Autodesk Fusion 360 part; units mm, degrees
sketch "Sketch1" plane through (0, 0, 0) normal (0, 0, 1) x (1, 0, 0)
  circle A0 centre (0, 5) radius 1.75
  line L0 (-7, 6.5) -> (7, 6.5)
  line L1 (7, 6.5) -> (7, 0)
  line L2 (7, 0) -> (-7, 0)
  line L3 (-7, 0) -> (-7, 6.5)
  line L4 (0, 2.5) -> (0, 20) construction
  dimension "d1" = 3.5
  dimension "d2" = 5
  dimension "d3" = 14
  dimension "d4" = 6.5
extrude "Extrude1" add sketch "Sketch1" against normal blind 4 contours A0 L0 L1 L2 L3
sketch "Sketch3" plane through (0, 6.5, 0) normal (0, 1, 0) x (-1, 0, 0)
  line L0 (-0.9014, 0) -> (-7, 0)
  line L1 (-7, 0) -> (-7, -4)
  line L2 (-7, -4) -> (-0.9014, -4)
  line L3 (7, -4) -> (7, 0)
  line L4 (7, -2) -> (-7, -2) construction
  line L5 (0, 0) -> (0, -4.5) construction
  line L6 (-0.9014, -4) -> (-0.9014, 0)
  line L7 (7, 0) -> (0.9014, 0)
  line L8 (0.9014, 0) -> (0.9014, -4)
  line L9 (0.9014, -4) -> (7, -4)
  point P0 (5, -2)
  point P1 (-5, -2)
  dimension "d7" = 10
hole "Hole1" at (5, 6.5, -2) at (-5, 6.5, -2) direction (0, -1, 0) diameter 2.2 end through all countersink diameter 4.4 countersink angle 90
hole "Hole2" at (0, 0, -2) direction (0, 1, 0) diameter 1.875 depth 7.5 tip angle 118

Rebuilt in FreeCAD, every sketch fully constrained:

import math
import FreeCAD as App
import Part
import Sketcher
Q = App.Units.Quantity

doc = App.newDocument("Part")
body = doc.addObject("PartDesign::Body", "Body")

# Sketch on XY plane
sketch1 = body.newObject("Sketcher::SketchObject", "Sketch")
sketch1.AttachmentSupport = (doc.getObject("XY_Plane"), [""])
sketch1.MapMode = "FlatFace"
sketch1.addGeometry([
    Part.ArcOfCircle(Part.Circle(App.Vector(0, 5, 0), App.Vector(0, 0, 1), 1.8), math.radians(121), math.radians(419)),  # 0
    Part.LineSegment(App.Vector(-0.9, 6.5, 0), App.Vector(-7, 6.5, 0)),  # 1
    Part.LineSegment(App.Vector(-7, 6.5, 0), App.Vector(-7, 0, 0)),  # 2
    Part.LineSegment(App.Vector(-7, 0, 0), App.Vector(7, 0, 0)),  # 3
    Part.LineSegment(App.Vector(7, 0, 0), App.Vector(7, 6.5, 0)),  # 4
    Part.LineSegment(App.Vector(7, 6.5, 0), App.Vector(0.9, 6.5, 0)),  # 5
], False)
sketch1.addConstraint([
    Sketcher.Constraint("Coincident", 0, 1, 1, 1),
    Sketcher.Constraint("Coincident", 1, 2, 2, 1),
    Sketcher.Constraint("Coincident", 2, 2, 3, 1),
    Sketcher.Constraint("Coincident", 3, 2, 4, 1),
    Sketcher.Constraint("Coincident", 4, 2, 5, 1),
    Sketcher.Constraint("Coincident", 5, 2, 0, 2),
    Sketcher.Constraint("Horizontal", 1),
    Sketcher.Constraint("Vertical", 2),
    Sketcher.Constraint("Horizontal", 3),
    Sketcher.Constraint("Vertical", 4),
    Sketcher.Constraint("Horizontal", 5),
    Sketcher.Constraint("Symmetric", 2, 2, 3, 2, -1, 1),
    Sketcher.Constraint("Symmetric", 0, 1, 5, 2, -2),
    Sketcher.Constraint("DistanceX", 3, 1, 3, 2, Q("14 mm")),
    Sketcher.Constraint("Radius", 0, Q("1.75 mm")),
    Sketcher.Constraint("DistanceY", 2, 2, 2, 1, Q("6.5 mm")),
    Sketcher.Constraint("DistanceY", -1, 1, 0, 3, Q("5 mm")),
])
pad1 = body.newObject("PartDesign::Pad", "Pad")
pad1.Profile = sketch1
pad1.Length = 4
pad1.Reversed = True

# Sketch on XZ plane
sketch2 = body.newObject("Sketcher::SketchObject", "Sketch001")
sketch2.AttachmentSupport = (doc.getObject("XZ_Plane"), [""])
sketch2.MapMode = "FlatFace"
sketch2.AttachmentOffset = App.Placement(App.Vector(0, 0, -6.5), App.Rotation())
sketch2.addGeometry([
    Part.Circle(App.Vector(5, -2, 0), App.Vector(0, 0, 1), 1.1),
    Part.Circle(App.Vector(-5, -2, 0), App.Vector(0, 0, 1), 1.1),
], False)
sketch2.addConstraint([
    Sketcher.Constraint("Equal", 0, 1),
    Sketcher.Constraint("Symmetric", 0, 3, 1, 3, -2),
    Sketcher.Constraint("Diameter", 0, Q("2.2 mm")),
    Sketcher.Constraint("DistanceX", -1, 1, 0, 3, Q("5 mm")),
    Sketcher.Constraint("DistanceY", 0, 3, -1, 1, Q("2 mm")),
])
doc.recompute()
hole = body.newObject("PartDesign::Hole", "Hole")
hole.Profile = sketch2
hole.ThreadType = "None"
hole.Diameter = 2.2
hole.DepthType = "ThroughAll"
hole.HoleCutType = "Countersink"
hole.HoleCutDiameter = 4.4
hole.HoleCutCountersinkAngle = 90
hole.Reversed = True

# Sketch on XZ plane
sketch3 = body.newObject("Sketcher::SketchObject", "Sketch002")
sketch3.AttachmentSupport = (doc.getObject("XZ_Plane"), [""])
sketch3.MapMode = "FlatFace"
sketch3.addGeometry(Part.Circle(App.Vector(0, -2, 0), App.Vector(0, 0, 1), 0.9), False)
sketch3.addConstraint([
    Sketcher.Constraint("PointOnObject", 0, 3, -2),
    Sketcher.Constraint("Diameter", 0, Q("1.875 mm")),
    Sketcher.Constraint("DistanceY", 0, 3, -1, 1, Q("2 mm")),
])
doc.recompute()
hole2 = body.newObject("PartDesign::Hole", "Hole001")
hole2.Profile = sketch3
hole2.ThreadType = "None"
hole2.Diameter = 1.875
hole2.DepthType = "Dimension"
hole2.Depth = 7.5
hole2.DrillPoint = "Angled"
hole2.DrillPointAngle = 118

doc.recompute()
